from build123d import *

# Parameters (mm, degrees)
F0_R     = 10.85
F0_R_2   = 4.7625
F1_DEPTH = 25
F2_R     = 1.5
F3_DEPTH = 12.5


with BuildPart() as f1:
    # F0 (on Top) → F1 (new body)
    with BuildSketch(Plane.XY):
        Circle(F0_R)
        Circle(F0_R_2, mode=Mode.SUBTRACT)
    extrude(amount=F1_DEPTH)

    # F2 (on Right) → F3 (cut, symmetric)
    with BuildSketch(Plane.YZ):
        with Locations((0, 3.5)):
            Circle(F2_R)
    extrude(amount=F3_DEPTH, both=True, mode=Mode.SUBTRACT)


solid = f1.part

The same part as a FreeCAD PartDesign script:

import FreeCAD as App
import Part
import Sketcher
Q = App.Units.Quantity

doc = App.newDocument("Part")
params = doc.addObject("Spreadsheet::Sheet", "Params")
for row, (alias, value) in enumerate([
    ("sketch1_diameter", "21.7 mm"),
    ("pad1_length", "25 mm"),
    ("sketch2_diameter", "3 mm"),
    ("pocket1_length", "25 mm"),
], start=1):
    params.set(f"A{row}", alias)
    params.set(f"B{row}", "=" + value)
    params.setAlias(f"B{row}", alias)

body = doc.addObject("PartDesign::Body", "Body")

# Sketch on XY plane
sketch1 = doc.addObject("Sketcher::SketchObject", "Sketch")
body.addObject(sketch1)
sketch1.AttachmentSupport = (doc.XY_Plane, [""])
sketch1.MapMode = "FlatFace"
sketch1.addGeometry([
    Part.Circle(App.Vector(0, 0, 0), App.Vector(0, 0, 1), 10.8),
    Part.Circle(App.Vector(0, 0, 0), App.Vector(0, 0, 1), 4.8),
], False)
sketch1.addConstraint([
    Sketcher.Constraint("Coincident", 0, 3, -1, 1),
    Sketcher.Constraint("Coincident", 1, 3, -1, 1),
    Sketcher.Constraint("Diameter", 0, Q("21.7 mm")),
    Sketcher.Constraint("Diameter", 1, Q("9.525 mm")),
])
sketch1.setExpression("Constraints[2]", "Params.sketch1_diameter")
pad1 = doc.addObject("PartDesign::Pad", "Pad")
body.addObject(pad1)
pad1.Profile = sketch1
pad1.setExpression("Length", "Params.pad1_length")

# Sketch on YZ plane
sketch2 = doc.addObject("Sketcher::SketchObject", "Sketch001")
body.addObject(sketch2)
sketch2.AttachmentSupport = (doc.YZ_Plane, [""])
sketch2.MapMode = "FlatFace"
sketch2.addGeometry(Part.Circle(App.Vector(0, 3.5, 0), App.Vector(0, 0, 1), 1.5), False)
sketch2.addConstraint([
    Sketcher.Constraint("PointOnObject", 0, 3, -2),
    Sketcher.Constraint("Diameter", 0, Q("3 mm")),
    Sketcher.Constraint("DistanceY", -1, 1, 0, 3, Q("3.5 mm")),
])
sketch2.setExpression("Constraints[1]", "Params.sketch2_diameter")
pocket1 = doc.addObject("PartDesign::Pocket", "Pocket")
body.addObject(pocket1)
pocket1.Profile = sketch2
pocket1.setExpression("Length", "Params.pocket1_length")
pocket1.Midplane = True

doc.recompute()
